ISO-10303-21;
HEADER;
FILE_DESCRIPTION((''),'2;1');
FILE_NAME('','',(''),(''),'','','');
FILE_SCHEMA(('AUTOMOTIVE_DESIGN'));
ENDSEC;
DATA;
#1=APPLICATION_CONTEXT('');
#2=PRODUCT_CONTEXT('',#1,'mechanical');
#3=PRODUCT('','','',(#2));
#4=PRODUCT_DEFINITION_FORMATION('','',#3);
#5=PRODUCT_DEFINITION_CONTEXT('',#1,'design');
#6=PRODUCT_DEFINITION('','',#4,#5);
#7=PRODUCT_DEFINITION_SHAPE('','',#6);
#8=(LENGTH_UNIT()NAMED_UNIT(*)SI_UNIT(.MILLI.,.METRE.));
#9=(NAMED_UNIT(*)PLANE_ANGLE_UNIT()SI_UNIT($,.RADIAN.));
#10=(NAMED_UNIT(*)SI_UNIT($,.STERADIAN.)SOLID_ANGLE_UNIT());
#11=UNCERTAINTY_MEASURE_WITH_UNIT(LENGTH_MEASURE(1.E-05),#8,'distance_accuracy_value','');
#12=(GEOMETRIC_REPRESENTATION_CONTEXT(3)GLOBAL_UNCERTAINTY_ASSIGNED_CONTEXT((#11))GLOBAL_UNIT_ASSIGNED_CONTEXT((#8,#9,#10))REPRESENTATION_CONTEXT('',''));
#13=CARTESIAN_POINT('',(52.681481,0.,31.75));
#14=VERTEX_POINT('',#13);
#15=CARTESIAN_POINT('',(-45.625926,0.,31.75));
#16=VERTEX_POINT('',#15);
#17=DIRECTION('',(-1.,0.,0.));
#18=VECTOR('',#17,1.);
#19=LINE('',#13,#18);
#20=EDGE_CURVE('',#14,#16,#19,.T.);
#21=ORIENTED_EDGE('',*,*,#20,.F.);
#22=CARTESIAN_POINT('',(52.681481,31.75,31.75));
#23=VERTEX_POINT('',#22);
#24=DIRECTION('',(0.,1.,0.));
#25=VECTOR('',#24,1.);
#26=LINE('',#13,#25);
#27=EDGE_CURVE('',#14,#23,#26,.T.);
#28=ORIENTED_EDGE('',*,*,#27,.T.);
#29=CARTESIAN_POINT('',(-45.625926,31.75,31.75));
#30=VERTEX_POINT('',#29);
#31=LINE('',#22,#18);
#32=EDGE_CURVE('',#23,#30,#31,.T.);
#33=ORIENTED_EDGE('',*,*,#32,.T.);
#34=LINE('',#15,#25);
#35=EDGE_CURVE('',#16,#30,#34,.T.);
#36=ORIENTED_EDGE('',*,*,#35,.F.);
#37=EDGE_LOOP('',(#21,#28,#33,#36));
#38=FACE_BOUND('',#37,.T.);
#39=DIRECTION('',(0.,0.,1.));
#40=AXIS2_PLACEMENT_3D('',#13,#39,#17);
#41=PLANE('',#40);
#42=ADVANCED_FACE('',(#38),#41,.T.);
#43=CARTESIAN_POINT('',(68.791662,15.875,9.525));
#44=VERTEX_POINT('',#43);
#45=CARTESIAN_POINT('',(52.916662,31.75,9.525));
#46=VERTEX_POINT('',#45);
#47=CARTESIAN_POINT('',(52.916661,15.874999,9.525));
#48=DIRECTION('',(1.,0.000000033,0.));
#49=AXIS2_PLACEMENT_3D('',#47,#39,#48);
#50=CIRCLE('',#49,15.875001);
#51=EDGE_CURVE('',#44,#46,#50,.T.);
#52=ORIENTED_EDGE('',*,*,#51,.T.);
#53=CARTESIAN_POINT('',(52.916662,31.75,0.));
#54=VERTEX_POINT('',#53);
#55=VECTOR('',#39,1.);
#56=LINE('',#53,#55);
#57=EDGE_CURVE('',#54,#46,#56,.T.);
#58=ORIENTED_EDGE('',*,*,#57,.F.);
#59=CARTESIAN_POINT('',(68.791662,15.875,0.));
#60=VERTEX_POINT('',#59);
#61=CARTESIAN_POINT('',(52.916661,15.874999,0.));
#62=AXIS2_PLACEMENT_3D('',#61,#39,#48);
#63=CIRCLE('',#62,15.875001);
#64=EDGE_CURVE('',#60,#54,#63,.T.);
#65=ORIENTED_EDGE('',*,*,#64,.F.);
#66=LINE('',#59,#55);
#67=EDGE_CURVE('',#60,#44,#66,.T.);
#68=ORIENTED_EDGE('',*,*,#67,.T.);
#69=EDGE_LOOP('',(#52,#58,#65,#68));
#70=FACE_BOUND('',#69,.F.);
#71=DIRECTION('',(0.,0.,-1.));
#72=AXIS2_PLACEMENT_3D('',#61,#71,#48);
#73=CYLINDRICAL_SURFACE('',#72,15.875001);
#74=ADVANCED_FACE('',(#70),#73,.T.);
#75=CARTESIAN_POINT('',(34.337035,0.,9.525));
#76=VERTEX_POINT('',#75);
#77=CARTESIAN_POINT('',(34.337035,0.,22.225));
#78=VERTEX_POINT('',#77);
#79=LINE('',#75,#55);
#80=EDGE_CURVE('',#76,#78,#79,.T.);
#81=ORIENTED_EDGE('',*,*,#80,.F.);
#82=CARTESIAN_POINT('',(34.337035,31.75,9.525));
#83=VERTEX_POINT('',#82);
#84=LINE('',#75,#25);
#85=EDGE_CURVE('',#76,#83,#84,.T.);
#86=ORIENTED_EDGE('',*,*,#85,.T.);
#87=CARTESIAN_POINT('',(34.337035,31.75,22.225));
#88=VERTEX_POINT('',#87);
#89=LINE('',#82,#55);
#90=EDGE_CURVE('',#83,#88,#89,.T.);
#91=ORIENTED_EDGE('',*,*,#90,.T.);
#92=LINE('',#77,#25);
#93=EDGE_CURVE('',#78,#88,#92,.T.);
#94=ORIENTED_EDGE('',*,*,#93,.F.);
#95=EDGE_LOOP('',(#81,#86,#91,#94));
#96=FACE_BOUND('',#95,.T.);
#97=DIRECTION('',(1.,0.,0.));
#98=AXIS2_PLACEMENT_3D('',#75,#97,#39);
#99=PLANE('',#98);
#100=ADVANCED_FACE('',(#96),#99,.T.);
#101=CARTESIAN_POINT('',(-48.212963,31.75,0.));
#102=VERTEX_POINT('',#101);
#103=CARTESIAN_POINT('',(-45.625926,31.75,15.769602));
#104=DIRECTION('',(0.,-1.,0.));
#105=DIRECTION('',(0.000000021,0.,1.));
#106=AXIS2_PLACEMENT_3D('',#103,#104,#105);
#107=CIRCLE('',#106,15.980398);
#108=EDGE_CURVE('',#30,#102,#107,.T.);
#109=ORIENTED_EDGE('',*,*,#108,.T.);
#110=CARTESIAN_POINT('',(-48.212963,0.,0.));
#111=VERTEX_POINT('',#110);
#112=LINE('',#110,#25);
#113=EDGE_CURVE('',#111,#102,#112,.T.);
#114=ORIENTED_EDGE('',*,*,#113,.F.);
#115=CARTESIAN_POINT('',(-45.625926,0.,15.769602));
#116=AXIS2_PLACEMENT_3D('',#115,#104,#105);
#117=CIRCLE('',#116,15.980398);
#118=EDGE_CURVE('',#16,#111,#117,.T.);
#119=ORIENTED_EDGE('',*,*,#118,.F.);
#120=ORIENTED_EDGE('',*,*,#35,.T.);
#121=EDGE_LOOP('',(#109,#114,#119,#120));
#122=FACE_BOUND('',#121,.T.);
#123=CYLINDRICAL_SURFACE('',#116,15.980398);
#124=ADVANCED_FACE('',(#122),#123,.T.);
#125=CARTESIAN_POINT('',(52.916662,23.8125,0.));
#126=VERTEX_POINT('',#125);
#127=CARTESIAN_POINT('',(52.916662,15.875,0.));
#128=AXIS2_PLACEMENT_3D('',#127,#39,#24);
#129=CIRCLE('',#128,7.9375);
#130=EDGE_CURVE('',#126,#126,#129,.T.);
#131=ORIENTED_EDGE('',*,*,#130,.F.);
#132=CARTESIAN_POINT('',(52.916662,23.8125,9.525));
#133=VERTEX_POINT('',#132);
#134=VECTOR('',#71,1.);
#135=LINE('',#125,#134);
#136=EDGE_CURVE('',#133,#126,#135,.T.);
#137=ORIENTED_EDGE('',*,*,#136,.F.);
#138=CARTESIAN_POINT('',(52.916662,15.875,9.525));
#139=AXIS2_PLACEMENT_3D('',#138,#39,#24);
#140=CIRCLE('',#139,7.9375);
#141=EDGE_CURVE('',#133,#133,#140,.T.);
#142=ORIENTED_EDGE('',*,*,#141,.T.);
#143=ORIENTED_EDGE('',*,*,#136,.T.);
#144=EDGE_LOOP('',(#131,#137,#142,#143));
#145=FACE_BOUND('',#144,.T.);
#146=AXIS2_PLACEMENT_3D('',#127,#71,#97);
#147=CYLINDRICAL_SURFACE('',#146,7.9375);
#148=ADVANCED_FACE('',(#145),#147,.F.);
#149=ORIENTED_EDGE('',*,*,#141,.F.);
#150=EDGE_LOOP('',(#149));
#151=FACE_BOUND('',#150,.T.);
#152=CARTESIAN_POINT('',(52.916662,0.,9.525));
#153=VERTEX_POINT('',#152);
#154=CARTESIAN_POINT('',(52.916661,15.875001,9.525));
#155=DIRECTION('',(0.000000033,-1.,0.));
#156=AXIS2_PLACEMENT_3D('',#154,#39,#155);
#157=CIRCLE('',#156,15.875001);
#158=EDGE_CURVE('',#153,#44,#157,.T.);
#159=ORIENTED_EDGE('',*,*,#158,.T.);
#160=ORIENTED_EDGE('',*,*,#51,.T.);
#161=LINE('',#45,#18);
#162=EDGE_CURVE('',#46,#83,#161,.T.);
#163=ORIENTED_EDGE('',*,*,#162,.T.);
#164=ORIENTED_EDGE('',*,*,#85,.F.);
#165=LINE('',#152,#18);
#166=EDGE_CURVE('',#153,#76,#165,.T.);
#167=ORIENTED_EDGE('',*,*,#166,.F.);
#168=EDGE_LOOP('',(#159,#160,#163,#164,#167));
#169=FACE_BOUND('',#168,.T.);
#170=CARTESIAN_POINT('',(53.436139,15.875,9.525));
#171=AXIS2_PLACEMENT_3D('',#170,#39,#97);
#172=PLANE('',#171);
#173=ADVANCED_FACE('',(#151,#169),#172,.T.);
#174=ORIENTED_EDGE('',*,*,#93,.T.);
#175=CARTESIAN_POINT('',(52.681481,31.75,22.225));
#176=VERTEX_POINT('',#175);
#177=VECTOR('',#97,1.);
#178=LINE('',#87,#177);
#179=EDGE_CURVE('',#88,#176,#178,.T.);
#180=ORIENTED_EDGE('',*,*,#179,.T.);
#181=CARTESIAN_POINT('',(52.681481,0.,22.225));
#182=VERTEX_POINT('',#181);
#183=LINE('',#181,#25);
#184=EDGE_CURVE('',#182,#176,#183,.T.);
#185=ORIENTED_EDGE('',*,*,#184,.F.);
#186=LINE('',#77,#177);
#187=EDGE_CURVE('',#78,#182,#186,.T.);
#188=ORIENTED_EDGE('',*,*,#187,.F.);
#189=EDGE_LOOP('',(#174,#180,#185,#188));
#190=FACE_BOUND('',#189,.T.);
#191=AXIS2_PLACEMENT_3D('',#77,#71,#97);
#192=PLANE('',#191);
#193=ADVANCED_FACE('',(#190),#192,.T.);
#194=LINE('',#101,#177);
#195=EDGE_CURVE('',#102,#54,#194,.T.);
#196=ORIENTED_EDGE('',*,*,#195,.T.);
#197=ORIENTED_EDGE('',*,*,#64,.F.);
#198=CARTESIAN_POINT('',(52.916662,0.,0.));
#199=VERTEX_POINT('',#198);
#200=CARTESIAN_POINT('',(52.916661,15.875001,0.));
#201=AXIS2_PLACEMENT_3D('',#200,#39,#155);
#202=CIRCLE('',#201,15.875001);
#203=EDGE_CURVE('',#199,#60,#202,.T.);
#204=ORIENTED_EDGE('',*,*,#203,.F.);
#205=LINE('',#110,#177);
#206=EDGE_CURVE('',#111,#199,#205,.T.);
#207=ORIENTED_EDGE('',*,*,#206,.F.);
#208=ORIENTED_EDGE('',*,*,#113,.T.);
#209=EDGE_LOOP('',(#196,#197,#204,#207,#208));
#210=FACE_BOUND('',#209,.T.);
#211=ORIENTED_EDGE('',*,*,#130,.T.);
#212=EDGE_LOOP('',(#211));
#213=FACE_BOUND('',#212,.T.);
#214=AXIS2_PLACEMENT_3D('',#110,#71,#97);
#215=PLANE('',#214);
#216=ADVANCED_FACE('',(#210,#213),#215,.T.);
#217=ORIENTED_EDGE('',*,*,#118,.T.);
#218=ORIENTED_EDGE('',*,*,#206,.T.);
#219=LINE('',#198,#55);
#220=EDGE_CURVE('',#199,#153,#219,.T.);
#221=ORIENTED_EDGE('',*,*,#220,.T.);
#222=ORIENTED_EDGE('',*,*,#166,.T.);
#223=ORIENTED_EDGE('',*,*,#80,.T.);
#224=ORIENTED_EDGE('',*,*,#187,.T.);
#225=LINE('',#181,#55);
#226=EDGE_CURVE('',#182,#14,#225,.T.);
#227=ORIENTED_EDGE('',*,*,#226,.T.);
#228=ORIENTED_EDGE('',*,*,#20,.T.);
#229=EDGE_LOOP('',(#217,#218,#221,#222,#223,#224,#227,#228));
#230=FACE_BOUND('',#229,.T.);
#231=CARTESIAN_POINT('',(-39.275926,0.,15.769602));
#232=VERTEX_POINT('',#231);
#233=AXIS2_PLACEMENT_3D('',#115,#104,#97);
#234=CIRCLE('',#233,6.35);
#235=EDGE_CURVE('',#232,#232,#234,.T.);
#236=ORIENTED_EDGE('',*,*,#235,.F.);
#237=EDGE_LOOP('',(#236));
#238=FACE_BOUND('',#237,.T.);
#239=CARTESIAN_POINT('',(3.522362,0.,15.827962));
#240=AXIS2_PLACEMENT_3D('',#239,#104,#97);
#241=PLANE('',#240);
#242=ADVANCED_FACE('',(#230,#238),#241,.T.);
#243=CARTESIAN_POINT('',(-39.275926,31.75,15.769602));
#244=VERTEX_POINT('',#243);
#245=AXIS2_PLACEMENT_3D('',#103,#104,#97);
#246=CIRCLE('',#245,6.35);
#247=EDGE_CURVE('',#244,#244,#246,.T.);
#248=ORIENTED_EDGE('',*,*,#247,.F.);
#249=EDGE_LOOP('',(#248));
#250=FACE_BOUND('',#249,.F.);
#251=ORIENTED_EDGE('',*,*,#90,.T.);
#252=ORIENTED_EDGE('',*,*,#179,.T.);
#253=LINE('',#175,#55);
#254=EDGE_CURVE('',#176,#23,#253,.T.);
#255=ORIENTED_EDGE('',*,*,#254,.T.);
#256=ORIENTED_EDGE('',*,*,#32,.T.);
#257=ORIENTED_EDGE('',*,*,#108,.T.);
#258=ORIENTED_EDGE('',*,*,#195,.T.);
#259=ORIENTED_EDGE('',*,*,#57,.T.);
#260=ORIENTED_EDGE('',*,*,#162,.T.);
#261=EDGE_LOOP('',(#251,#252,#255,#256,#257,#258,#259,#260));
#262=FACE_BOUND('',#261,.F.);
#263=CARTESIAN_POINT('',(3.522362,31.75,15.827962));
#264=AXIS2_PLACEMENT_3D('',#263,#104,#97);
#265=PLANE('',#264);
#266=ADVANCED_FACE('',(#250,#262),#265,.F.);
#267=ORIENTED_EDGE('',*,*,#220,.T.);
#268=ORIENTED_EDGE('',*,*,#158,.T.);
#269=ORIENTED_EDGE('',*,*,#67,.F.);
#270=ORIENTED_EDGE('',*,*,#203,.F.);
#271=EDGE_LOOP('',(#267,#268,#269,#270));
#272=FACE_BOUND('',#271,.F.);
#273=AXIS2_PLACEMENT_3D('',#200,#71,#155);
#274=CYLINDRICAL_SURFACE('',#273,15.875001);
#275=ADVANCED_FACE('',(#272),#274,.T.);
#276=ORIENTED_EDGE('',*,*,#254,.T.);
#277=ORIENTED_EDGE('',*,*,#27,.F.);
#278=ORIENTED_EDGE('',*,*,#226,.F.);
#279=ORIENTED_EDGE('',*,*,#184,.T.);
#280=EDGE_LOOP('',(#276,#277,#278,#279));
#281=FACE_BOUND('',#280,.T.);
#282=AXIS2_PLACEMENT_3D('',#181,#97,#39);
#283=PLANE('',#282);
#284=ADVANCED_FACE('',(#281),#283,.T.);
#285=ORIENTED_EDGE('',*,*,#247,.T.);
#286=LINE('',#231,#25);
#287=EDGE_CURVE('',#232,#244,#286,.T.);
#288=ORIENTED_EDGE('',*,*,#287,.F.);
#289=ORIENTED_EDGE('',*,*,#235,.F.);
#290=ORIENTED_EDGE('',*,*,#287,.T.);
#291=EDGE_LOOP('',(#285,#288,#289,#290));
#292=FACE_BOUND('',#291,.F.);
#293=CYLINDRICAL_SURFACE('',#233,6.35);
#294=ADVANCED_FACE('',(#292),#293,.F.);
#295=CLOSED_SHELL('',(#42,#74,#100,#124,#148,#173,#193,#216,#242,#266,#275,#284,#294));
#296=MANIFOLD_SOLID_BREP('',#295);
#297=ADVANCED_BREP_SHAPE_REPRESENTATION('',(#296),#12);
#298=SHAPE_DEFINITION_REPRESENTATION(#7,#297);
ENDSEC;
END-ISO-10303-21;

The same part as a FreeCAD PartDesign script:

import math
import FreeCAD as App
import Part
import Sketcher

V = App.Vector
Q = App.Units.Quantity

doc = App.newDocument("Part")
params = doc.addObject("Spreadsheet::Sheet", "Params")
for row, (alias, value) in enumerate([
    ("sketch1_diameter", "0.5 in"),
    ("sketch1_height", "0.5 in"),
    ("sketch1_height2", "0.375 in"),
    ("pad1_length", "1.25 in"),
    ("sketch2_diameter", "0.625 in"),
    ("sketch2_radius", "0.625 in"),
    ("sketch3_diameter", "0.625 in"),
    ("pocket1_length", "0.375 in"),
], start=1):
    params.set(f"A{row}", alias)
    params.set(f"B{row}", "=" + value)
    params.setAlias(f"B{row}", alias)

body = doc.addObject("PartDesign::Body", "Body")

# Sketch on XZ plane
sketch1 = doc.addObject("Sketcher::SketchObject", "Sketch")
body.addObject(sketch1)
sketch1.AttachmentSupport = (doc.XZ_Plane, [""])
sketch1.MapMode = "FlatFace"
sketch1.addGeometry([
    Part.ArcOfCircle(Part.Circle(V(-46, 16, 0), V(0, 0, 1), 16), math.radians(90), math.radians(261)),  # 0
    Part.LineSegment(V(-48, 0, 0), V(53, 0, 0)),  # 1
    Part.LineSegment(V(53, 0, 0), V(53, 10, 0)),  # 2
    Part.LineSegment(V(53, 10, 0), V(34, 10, 0)),  # 3
    Part.LineSegment(V(34, 10, 0), V(34, 22, 0)),  # 4
    Part.LineSegment(V(34, 22, 0), V(53, 22, 0)),  # 5
    Part.LineSegment(V(53, 22, 0), V(53, 32, 0)),  # 6
    Part.LineSegment(V(53, 32, 0), V(-46, 32, 0)),  # 7
    Part.Circle(V(-46, 16, 0), V(0, 0, 1), 6),  # 8
], False)
sketch1.addConstraint([
    Sketcher.Constraint("Coincident", 0, 2, 1, 1),
    Sketcher.Constraint("Coincident", 1, 2, 2, 1),
    Sketcher.Constraint("Coincident", 2, 2, 3, 1),
    Sketcher.Constraint("Coincident", 3, 2, 4, 1),
    Sketcher.Constraint("Coincident", 4, 2, 5, 1),
    Sketcher.Constraint("Coincident", 5, 2, 6, 1),
    Sketcher.Constraint("Coincident", 6, 2, 7, 1),
    Sketcher.Constraint("Tangent", 7, 2, 0, 1),
    Sketcher.Constraint("Horizontal", 1),
    Sketcher.Constraint("Vertical", 2),
    Sketcher.Constraint("Horizontal", 3),
    Sketcher.Constraint("Vertical", 4),
    Sketcher.Constraint("Horizontal", 5),
    Sketcher.Constraint("Vertical", 6),
    Sketcher.Constraint("Horizontal", 7),
    Sketcher.Constraint("Coincident", 8, 3, 0, 3),
    Sketcher.Constraint("PointOnObject", 0, 2, -1),
    Sketcher.Constraint("Equal", 2, 6),
    Sketcher.Constraint("Diameter", 8, Q("0.5 in")),
    Sketcher.Constraint("DistanceY", 4, 1, 4, 2, Q("0.5 in")),
    Sketcher.Constraint("DistanceY", 2, 1, 2, 2, Q("0.375 in")),
    Sketcher.Constraint("DistanceX", 0, 2, 3, 2, Q("3.2499999 in")),
    Sketcher.Constraint("Radius", 0, 15.980398),
    Sketcher.Constraint("DistanceX", 1, 1, 1, 2, 101.129625),
    Sketcher.Constraint("DistanceX", 5, 1, 5, 2, 18.344446),
    Sketcher.Constraint("DistanceX", -1, 1, 5, 2, 52.681481),
])
sketch1.setExpression("Constraints[18]", "Params.sketch1_diameter")
sketch1.setExpression("Constraints[19]", "Params.sketch1_height")
sketch1.setExpression("Constraints[20]", "Params.sketch1_height2")
pad1 = doc.addObject("PartDesign::Pad", "Pad")
body.addObject(pad1)
pad1.Profile = sketch1
pad1.setExpression("Length", "Params.pad1_length")
pad1.Reversed = True

# Sketch on XY plane
sketch2 = doc.addObject("Sketcher::SketchObject", "Sketch001")
body.addObject(sketch2)
sketch2.AttachmentSupport = (doc.XY_Plane, [""])
sketch2.MapMode = "FlatFace"
sketch2.addGeometry([
    Part.ArcOfCircle(Part.Circle(V(53, 16, 0), V(0, 0, 1), 16), math.radians(90), math.radians(270)),
    Part.ArcOfCircle(Part.Circle(V(53, 16, 0), V(0, 0, 1), 16), math.radians(-90), math.radians(0)),
    Part.ArcOfCircle(Part.Circle(V(53, 16, 0), V(0, 0, 1), 16), math.radians(0), math.radians(90)),
    Part.Circle(V(53, 16, 0), V(0, 0, 1), 8),
], False)
sketch2.addConstraint([
    Sketcher.Constraint("Tangent", 0, 2, 1, 1),
    Sketcher.Constraint("Tangent", 1, 2, 2, 1),
    Sketcher.Constraint("Tangent", 2, 2, 0, 1),
    Sketcher.Constraint("Coincident", 3, 3, 0, 3),
    Sketcher.Constraint("PointOnObject", 0, 2, -1),
    Sketcher.Constraint("Horizontal", 3, 3, 1, 2),
    Sketcher.Constraint("Vertical", 3, 3, 0, 2),
    Sketcher.Constraint("Vertical", 0, 2, 2, 2),
    Sketcher.Constraint("Diameter", 3, Q("0.625 in")),
    Sketcher.Constraint("Radius", 0, Q("0.625 in")),
    Sketcher.Constraint("DistanceX", -1, 1, 1, 3, 52.916661),
])
sketch2.setExpression("Constraints[8]", "Params.sketch2_diameter")
sketch2.setExpression("Constraints[9]", "Params.sketch2_radius")
pad2 = doc.addObject("PartDesign::Pad", "Pad001")
body.addObject(pad2)
pad2.Profile = sketch2
pad2.Type = "UpToLast"

# Sketch on XY plane
sketch3 = doc.addObject("Sketcher::SketchObject", "Sketch002")
body.addObject(sketch3)
sketch3.AttachmentSupport = (doc.XY_Plane, [""])
sketch3.MapMode = "FlatFace"
sketch3.addGeometry(Part.Circle(V(53, 16, 0), V(0, 0, 1), 8), False)
sketch3.addConstraint([
    Sketcher.Constraint("Diameter", 0, Q("0.625 in")),
    Sketcher.Constraint("DistanceY", -1, 1, 0, 3, Q("0.625 in")),
    Sketcher.Constraint("DistanceX", -1, 1, 0, 3, 52.916662),
])
sketch3.setExpression("Constraints[0]", "Params.sketch3_diameter")
pocket1 = doc.addObject("PartDesign::Pocket", "Pocket")
body.addObject(pocket1)
pocket1.Profile = sketch3
pocket1.setExpression("Length", "Params.pocket1_length")
pocket1.Reversed = True

doc.recompute()
